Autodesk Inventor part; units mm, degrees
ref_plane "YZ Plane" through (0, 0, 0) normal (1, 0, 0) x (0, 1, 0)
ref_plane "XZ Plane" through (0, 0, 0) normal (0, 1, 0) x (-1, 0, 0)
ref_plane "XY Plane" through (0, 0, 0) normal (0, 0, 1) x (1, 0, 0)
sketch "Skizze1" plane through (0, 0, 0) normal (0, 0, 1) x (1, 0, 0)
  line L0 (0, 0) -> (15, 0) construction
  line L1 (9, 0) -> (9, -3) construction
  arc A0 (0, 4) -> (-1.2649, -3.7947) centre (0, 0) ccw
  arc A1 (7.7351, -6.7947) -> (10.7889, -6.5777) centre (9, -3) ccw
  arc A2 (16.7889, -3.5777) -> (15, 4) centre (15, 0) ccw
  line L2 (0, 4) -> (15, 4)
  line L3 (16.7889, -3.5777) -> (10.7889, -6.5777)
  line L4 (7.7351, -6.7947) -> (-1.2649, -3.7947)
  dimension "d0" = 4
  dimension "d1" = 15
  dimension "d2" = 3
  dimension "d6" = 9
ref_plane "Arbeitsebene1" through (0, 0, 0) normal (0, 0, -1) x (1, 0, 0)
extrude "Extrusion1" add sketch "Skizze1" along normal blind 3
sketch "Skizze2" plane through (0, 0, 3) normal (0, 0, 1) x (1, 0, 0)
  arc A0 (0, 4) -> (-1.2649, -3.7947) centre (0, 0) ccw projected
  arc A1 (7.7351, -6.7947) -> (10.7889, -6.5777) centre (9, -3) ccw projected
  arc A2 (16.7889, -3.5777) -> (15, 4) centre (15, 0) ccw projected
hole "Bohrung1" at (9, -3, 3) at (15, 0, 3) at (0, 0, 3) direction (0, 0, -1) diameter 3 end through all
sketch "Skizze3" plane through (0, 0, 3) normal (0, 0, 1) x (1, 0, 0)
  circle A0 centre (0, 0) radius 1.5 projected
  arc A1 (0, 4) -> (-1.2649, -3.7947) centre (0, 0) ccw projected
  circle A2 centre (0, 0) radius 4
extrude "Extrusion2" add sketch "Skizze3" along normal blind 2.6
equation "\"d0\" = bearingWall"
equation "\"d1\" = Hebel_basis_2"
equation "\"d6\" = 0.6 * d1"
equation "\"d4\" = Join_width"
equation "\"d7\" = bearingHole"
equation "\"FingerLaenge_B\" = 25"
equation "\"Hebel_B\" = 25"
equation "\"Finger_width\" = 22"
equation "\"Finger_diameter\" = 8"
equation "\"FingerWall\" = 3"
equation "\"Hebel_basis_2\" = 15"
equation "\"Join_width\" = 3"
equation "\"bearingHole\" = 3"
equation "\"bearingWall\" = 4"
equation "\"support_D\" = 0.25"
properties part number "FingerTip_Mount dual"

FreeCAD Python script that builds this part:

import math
import FreeCAD as App
import Part
import Sketcher
Q = App.Units.Quantity

doc = App.newDocument("Part")
body = doc.addObject("PartDesign::Body", "Body")

# Sketch on XY plane
sketch1 = body.newObject("Sketcher::SketchObject", "Sketch")
sketch1.AttachmentSupport = (doc.getObject("XY_Plane"), [""])
sketch1.MapMode = "FlatFace"
sketch1.addGeometry(Part.LineSegment(App.Vector(15, 4, 0), App.Vector(0, 4, 0)), False)
sketch1.addGeometry(Part.ArcOfCircle(Part.Circle(App.Vector(0, 0, 0), App.Vector(0, 0, 1), 4), math.radians(90), math.radians(252)), False)
sketch1.addGeometry(Part.LineSegment(App.Vector(-1.3, -3.8, 0), App.Vector(7.7, -6.8, 0)), False)
sketch1.addGeometry(Part.ArcOfCircle(Part.Circle(App.Vector(9, -3, 0), App.Vector(0, 0, 1), 4), math.radians(-108), math.radians(-63)), False)
sketch1.addGeometry(Part.LineSegment(App.Vector(10.8, -6.6, 0), App.Vector(16.8, -3.6, 0)), False)
sketch1.addGeometry(Part.ArcOfCircle(Part.Circle(App.Vector(15, 0, 0), App.Vector(0, 0, 1), 4), math.radians(-63), math.radians(90)), False)
sketch1.addConstraint(Sketcher.Constraint("Tangent", 0, 2, 1, 1))
sketch1.addConstraint(Sketcher.Constraint("Tangent", 1, 2, 2, 1))
sketch1.addConstraint(Sketcher.Constraint("Tangent", 2, 2, 3, 1))
sketch1.addConstraint(Sketcher.Constraint("Tangent", 3, 2, 4, 1))
sketch1.addConstraint(Sketcher.Constraint("Tangent", 4, 2, 5, 1))
sketch1.addConstraint(Sketcher.Constraint("Tangent", 5, 2, 0, 1))
sketch1.addConstraint(Sketcher.Constraint("Horizontal", 0))
sketch1.addConstraint(Sketcher.Constraint("Coincident", 1, 3, -1, 1))
sketch1.addConstraint(Sketcher.Constraint("Equal", 1, 3))
sketch1.addConstraint(Sketcher.Constraint("Equal", 3, 5))
sketch1.addConstraint(Sketcher.Constraint("Radius", 1, Q("4 mm")))
sketch1.addConstraint(Sketcher.Constraint("DistanceX", 0, 2, 0, 1, Q("15 mm")))
sketch1.addConstraint(Sketcher.Constraint("DistanceX", -1, 1, 3, 3, Q("9 mm")))
sketch1.addConstraint(Sketcher.Constraint("DistanceY", 3, 3, -1, 1, Q("3 mm")))
pad1 = body.newObject("PartDesign::Pad", "Pad")
pad1.Profile = sketch1
pad1.Length = 3

# Sketch on XY plane
sketch2 = body.newObject("Sketcher::SketchObject", "Sketch001")
sketch2.AttachmentSupport = (doc.getObject("XY_Plane"), [""])
sketch2.MapMode = "FlatFace"
sketch2.AttachmentOffset = App.Placement(App.Vector(0, 0, 3), App.Rotation())
sketch2.addGeometry(Part.Circle(App.Vector(9, -3, 0), App.Vector(0, 0, 1), 1.5), False)
sketch2.addGeometry(Part.Circle(App.Vector(15, 0, 0), App.Vector(0, 0, 1), 1.5), False)
sketch2.addGeometry(Part.Circle(App.Vector(0, 0, 0), App.Vector(0, 0, 1), 1.5), False)
sketch2.addConstraint(Sketcher.Constraint("Coincident", 2, 3, -1, 1))
sketch2.addConstraint(Sketcher.Constraint("Equal", 0, 1))
sketch2.addConstraint(Sketcher.Constraint("Equal", 1, 2))
sketch2.addConstraint(Sketcher.Constraint("PointOnObject", 1, 3, -1))
sketch2.addConstraint(Sketcher.Constraint("Diameter", 0, Q("3 mm")))
sketch2.addConstraint(Sketcher.Constraint("DistanceX", -1, 1, 0, 3, Q("9 mm")))
sketch2.addConstraint(Sketcher.Constraint("DistanceY", 0, 3, -1, 1, Q("3 mm")))
sketch2.addConstraint(Sketcher.Constraint("DistanceX", -1, 1, 1, 3, Q("15 mm")))
doc.recompute()
hole = body.newObject("PartDesign::Hole", "Hole")
hole.Profile = sketch2
hole.ThreadType = "None"
hole.Diameter = 3
hole.DepthType = "ThroughAll"

# Sketch on XY plane
sketch3 = body.newObject("Sketcher::SketchObject", "Sketch002")
sketch3.AttachmentSupport = (doc.getObject("XY_Plane"), [""])
sketch3.MapMode = "FlatFace"
sketch3.AttachmentOffset = App.Placement(App.Vector(0, 0, 3), App.Rotation())
sketch3.addGeometry(Part.ArcOfCircle(Part.Circle(App.Vector(0, 0, 0), App.Vector(0, 0, 1), 4), math.radians(-108), math.radians(90)), False)
sketch3.addGeometry(Part.ArcOfCircle(Part.Circle(App.Vector(0, 0, 0), App.Vector(0, 0, 1), 4), math.radians(90), math.radians(252)), False)
sketch3.addGeometry(Part.Circle(App.Vector(0, 0, 0), App.Vector(0, 0, 1), 1.5), False)
sketch3.addConstraint(Sketcher.Constraint("Tangent", 0, 1, 1, 2))
sketch3.addConstraint(Sketcher.Constraint("Coincident", 1, 1, 0, 2))
sketch3.addConstraint(Sketcher.Constraint("Coincident", 0, 3, -1, 1))
sketch3.addConstraint(Sketcher.Constraint("Coincident", 2, 3, -1, 1))
sketch3.addConstraint(Sketcher.Constraint("PointOnObject", 1, 1, -2))
sketch3.addConstraint(Sketcher.Constraint("Diameter", 2, Q("3 mm")))
sketch3.addConstraint(Sketcher.Constraint("Radius", 0, Q("4 mm")))
sketch3.addConstraint(Sketcher.Constraint("DistanceX", 0, 1, -1, 1, Q("1.265 mm")))
pad2 = body.newObject("PartDesign::Pad", "Pad001")
pad2.Profile = sketch3
pad2.Length = 2.6

doc.recompute()
